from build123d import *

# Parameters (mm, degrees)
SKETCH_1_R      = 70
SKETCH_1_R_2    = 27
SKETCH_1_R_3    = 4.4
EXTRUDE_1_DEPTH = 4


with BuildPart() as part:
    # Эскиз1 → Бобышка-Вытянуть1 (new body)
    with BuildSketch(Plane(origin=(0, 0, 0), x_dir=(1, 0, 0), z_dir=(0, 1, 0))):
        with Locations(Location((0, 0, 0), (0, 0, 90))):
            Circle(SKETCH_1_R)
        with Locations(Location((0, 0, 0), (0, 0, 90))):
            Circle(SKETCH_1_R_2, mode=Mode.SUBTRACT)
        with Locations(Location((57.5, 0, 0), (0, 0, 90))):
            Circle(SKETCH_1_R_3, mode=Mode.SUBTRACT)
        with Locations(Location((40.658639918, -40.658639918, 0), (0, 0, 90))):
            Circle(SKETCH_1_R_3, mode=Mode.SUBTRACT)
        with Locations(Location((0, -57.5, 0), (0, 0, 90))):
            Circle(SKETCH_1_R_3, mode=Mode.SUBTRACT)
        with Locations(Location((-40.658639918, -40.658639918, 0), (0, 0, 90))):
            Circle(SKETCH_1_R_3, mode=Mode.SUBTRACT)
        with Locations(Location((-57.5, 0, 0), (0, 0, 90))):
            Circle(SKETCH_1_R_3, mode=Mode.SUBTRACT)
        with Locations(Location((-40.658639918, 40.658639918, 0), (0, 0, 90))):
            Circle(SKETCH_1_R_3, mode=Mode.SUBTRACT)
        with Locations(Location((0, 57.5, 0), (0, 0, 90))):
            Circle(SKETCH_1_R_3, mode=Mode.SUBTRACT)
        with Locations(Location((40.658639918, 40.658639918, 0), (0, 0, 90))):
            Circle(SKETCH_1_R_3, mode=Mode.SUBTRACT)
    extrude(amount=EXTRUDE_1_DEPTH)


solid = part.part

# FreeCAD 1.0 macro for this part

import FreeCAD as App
import Part
import Sketcher
from FreeCAD import Vector
Q = App.Units.Quantity

doc = App.newDocument("Part")
body = doc.addObject("PartDesign::Body", "Body")

# Sketch on XZ plane
sketch1 = doc.addObject("Sketcher::SketchObject", "Sketch")
body.addObject(sketch1)
sketch1.AttachmentSupport = (doc.XZ_Plane, [""])
sketch1.MapMode = "FlatFace"
sketch1.addGeometry([
    Part.Circle(Vector(0, 0, 0), Vector(0, 0, 1), 70),  # 0
    Part.Circle(Vector(40.7, 40.7, 0), Vector(0, 0, 1), 4.4),  # 1
    Part.Circle(Vector(0, 57.5, 0), Vector(0, 0, 1), 4.4),  # 2
    Part.Circle(Vector(57.5, 0, 0), Vector(0, 0, 1), 4.4),  # 3
    Part.Circle(Vector(40.7, -40.7, 0), Vector(0, 0, 1), 4.4),  # 4
    Part.Circle(Vector(-40.7, 40.7, 0), Vector(0, 0, 1), 4.4),  # 5
    Part.Circle(Vector(-57.5, 0, 0), Vector(0, 0, 1), 4.4),  # 6
    Part.Circle(Vector(0, 0, 0), Vector(0, 0, 1), 27),  # 7
    Part.Circle(Vector(0, -57.5, 0), Vector(0, 0, 1), 4.4),  # 8
    Part.Circle(Vector(-40.7, -40.7, 0), Vector(0, 0, 1), 4.4),  # 9
], False)
sketch1.addConstraint([
    Sketcher.Constraint("Coincident", 0, 3, -1, 1),
    Sketcher.Constraint("Coincident", 7, 3, -1, 1),
    Sketcher.Constraint("Equal", 1, 2),
    Sketcher.Constraint("Equal", 2, 3),
    Sketcher.Constraint("Equal", 3, 4),
    Sketcher.Constraint("Equal", 4, 5),
    Sketcher.Constraint("Equal", 5, 6),
    Sketcher.Constraint("Equal", 6, 8),
    Sketcher.Constraint("Equal", 8, 9),
    Sketcher.Constraint("Symmetric", 4, 3, 5, 3, -1, 1),
    Sketcher.Constraint("Symmetric", 3, 3, 6, 3, -1, 1),
    Sketcher.Constraint("Symmetric", 2, 3, 8, 3, -1, 1),
    Sketcher.Constraint("Symmetric", 1, 3, 9, 3, -1, 1),
    Sketcher.Constraint("Symmetric", 1, 3, 5, 3, -2),
    Sketcher.Constraint("PointOnObject", 2, 3, -2),
    Sketcher.Constraint("PointOnObject", 3, 3, -1),
    Sketcher.Constraint("Diameter", 0, Q("140 mm")),
    Sketcher.Constraint("Diameter", 7, Q("54 mm")),
    Sketcher.Constraint("Diameter", 1, Q("8.8 mm")),
    Sketcher.Constraint("DistanceY", -1, 1, 2, 3, Q("57.5 mm")),
    Sketcher.Constraint("DistanceX", -1, 1, 3, 3, Q("57.5 mm")),
    Sketcher.Constraint("DistanceX", -1, 1, 1, 3, Q("40.65864 mm")),
    Sketcher.Constraint("DistanceY", -1, 1, 1, 3, Q("40.65864 mm")),
])
pad1 = doc.addObject("PartDesign::Pad", "Pad")
body.addObject(pad1)
pad1.Profile = sketch1
pad1.Length = 4
pad1.Reversed = True

doc.recompute()
